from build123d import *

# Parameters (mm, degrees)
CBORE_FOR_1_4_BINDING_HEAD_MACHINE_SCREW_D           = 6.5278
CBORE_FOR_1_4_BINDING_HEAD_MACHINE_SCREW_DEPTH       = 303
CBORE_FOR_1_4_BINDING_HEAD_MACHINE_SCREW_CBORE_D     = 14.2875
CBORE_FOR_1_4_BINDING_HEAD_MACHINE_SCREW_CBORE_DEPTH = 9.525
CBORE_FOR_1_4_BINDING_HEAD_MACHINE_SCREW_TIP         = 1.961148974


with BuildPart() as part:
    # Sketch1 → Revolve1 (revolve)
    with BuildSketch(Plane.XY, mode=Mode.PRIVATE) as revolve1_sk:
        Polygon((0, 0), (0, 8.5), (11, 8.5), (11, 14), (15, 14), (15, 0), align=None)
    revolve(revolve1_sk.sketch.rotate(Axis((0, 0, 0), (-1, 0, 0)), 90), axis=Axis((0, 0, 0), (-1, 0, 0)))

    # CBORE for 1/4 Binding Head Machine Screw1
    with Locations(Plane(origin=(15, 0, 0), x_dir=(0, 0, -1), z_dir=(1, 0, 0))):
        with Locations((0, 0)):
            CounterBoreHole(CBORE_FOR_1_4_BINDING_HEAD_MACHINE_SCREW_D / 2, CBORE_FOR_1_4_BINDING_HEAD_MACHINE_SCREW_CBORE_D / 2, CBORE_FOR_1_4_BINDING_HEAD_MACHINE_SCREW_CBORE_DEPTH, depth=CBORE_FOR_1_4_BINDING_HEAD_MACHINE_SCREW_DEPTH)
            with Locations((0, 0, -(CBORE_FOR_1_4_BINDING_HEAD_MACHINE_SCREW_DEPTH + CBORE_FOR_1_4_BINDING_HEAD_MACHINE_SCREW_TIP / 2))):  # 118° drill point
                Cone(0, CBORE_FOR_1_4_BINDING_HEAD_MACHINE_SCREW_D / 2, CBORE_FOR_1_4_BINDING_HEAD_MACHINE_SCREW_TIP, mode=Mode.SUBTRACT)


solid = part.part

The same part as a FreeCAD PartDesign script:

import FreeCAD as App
import Part
import Sketcher
from FreeCAD import Vector


def add_polygon(sketch, points):
    """Adds a closed chain of lines whose ends are joined by coincident constraints."""
    first, n = sketch.GeometryCount, len(points)
    for a, b in zip(points, points[1:] + points[:1]):
        sketch.addGeometry(Part.LineSegment(App.Vector(*a, 0), App.Vector(*b, 0)), False)
    for i in range(n):
        sketch.addConstraint(Sketcher.Constraint("Coincident", first + i, 2, first + (i + 1) % n, 1))

doc = App.newDocument("Part")
body = doc.addObject("PartDesign::Body", "Body")

# Sketch on XY plane
sketch1 = doc.addObject("Sketcher::SketchObject", "Sketch")
body.addObject(sketch1)
sketch1.AttachmentSupport = (doc.XY_Plane, [""])
sketch1.MapMode = "FlatFace"
add_polygon(sketch1, [(0, 8.5), (0, 0), (15, 0), (15, 14), (11, 14), (11, 8.5)])  # lines 0-5
sketch1.addConstraint([
    Sketcher.Constraint("Vertical", 0),
    Sketcher.Constraint("Horizontal", 1),
    Sketcher.Constraint("Vertical", 2),
    Sketcher.Constraint("Horizontal", 3),
    Sketcher.Constraint("Vertical", 4),
    Sketcher.Constraint("Horizontal", 5),
    Sketcher.Constraint("Coincident", 0, 2, -1, 1),
    Sketcher.Constraint("DistanceX", 1, 1, 1, 2, 15.0),
    Sketcher.Constraint("DistanceX", 3, 2, 3, 1, 4.0),
    Sketcher.Constraint("DistanceY", 2, 1, 2, 2, 14.0),
    Sketcher.Constraint("DistanceY", 0, 2, 0, 1, 8.5),
])
revolution = doc.addObject("PartDesign::Revolution", "Revolution")
body.addObject(revolution)
revolution.Profile = sketch1
revolution.ReferenceAxis = (sketch1, ["H_Axis"])
revolution.Angle = 360

# Sketch on YZ plane
sketch2 = doc.addObject("Sketcher::SketchObject", "Sketch001")
body.addObject(sketch2)
sketch2.AttachmentSupport = (doc.YZ_Plane, [""])
sketch2.MapMode = "FlatFace"
sketch2.AttachmentOffset = App.Placement(Vector(0, 0, 15), App.Rotation())
sketch2.addGeometry(Part.Circle(Vector(0, 0, 0), Vector(0, 0, 1), 3.3), False)
sketch2.addConstraint([
    Sketcher.Constraint("Coincident", 0, 3, -1, 1),
    Sketcher.Constraint("Diameter", 0, 6.5278),
])
doc.recompute()
hole = doc.addObject("PartDesign::Hole", "Hole")
body.addObject(hole)
hole.Profile = sketch2
hole.ThreadType = "None"
hole.Diameter = 6.5278
hole.DepthType = "Dimension"
hole.Depth = 303
hole.DrillPoint = "Angled"
hole.DrillPointAngle = 118
hole.HoleCutType = "Counterbore"
hole.HoleCutDiameter = 14.2875
hole.HoleCutDepth = 9.525

doc.recompute()
